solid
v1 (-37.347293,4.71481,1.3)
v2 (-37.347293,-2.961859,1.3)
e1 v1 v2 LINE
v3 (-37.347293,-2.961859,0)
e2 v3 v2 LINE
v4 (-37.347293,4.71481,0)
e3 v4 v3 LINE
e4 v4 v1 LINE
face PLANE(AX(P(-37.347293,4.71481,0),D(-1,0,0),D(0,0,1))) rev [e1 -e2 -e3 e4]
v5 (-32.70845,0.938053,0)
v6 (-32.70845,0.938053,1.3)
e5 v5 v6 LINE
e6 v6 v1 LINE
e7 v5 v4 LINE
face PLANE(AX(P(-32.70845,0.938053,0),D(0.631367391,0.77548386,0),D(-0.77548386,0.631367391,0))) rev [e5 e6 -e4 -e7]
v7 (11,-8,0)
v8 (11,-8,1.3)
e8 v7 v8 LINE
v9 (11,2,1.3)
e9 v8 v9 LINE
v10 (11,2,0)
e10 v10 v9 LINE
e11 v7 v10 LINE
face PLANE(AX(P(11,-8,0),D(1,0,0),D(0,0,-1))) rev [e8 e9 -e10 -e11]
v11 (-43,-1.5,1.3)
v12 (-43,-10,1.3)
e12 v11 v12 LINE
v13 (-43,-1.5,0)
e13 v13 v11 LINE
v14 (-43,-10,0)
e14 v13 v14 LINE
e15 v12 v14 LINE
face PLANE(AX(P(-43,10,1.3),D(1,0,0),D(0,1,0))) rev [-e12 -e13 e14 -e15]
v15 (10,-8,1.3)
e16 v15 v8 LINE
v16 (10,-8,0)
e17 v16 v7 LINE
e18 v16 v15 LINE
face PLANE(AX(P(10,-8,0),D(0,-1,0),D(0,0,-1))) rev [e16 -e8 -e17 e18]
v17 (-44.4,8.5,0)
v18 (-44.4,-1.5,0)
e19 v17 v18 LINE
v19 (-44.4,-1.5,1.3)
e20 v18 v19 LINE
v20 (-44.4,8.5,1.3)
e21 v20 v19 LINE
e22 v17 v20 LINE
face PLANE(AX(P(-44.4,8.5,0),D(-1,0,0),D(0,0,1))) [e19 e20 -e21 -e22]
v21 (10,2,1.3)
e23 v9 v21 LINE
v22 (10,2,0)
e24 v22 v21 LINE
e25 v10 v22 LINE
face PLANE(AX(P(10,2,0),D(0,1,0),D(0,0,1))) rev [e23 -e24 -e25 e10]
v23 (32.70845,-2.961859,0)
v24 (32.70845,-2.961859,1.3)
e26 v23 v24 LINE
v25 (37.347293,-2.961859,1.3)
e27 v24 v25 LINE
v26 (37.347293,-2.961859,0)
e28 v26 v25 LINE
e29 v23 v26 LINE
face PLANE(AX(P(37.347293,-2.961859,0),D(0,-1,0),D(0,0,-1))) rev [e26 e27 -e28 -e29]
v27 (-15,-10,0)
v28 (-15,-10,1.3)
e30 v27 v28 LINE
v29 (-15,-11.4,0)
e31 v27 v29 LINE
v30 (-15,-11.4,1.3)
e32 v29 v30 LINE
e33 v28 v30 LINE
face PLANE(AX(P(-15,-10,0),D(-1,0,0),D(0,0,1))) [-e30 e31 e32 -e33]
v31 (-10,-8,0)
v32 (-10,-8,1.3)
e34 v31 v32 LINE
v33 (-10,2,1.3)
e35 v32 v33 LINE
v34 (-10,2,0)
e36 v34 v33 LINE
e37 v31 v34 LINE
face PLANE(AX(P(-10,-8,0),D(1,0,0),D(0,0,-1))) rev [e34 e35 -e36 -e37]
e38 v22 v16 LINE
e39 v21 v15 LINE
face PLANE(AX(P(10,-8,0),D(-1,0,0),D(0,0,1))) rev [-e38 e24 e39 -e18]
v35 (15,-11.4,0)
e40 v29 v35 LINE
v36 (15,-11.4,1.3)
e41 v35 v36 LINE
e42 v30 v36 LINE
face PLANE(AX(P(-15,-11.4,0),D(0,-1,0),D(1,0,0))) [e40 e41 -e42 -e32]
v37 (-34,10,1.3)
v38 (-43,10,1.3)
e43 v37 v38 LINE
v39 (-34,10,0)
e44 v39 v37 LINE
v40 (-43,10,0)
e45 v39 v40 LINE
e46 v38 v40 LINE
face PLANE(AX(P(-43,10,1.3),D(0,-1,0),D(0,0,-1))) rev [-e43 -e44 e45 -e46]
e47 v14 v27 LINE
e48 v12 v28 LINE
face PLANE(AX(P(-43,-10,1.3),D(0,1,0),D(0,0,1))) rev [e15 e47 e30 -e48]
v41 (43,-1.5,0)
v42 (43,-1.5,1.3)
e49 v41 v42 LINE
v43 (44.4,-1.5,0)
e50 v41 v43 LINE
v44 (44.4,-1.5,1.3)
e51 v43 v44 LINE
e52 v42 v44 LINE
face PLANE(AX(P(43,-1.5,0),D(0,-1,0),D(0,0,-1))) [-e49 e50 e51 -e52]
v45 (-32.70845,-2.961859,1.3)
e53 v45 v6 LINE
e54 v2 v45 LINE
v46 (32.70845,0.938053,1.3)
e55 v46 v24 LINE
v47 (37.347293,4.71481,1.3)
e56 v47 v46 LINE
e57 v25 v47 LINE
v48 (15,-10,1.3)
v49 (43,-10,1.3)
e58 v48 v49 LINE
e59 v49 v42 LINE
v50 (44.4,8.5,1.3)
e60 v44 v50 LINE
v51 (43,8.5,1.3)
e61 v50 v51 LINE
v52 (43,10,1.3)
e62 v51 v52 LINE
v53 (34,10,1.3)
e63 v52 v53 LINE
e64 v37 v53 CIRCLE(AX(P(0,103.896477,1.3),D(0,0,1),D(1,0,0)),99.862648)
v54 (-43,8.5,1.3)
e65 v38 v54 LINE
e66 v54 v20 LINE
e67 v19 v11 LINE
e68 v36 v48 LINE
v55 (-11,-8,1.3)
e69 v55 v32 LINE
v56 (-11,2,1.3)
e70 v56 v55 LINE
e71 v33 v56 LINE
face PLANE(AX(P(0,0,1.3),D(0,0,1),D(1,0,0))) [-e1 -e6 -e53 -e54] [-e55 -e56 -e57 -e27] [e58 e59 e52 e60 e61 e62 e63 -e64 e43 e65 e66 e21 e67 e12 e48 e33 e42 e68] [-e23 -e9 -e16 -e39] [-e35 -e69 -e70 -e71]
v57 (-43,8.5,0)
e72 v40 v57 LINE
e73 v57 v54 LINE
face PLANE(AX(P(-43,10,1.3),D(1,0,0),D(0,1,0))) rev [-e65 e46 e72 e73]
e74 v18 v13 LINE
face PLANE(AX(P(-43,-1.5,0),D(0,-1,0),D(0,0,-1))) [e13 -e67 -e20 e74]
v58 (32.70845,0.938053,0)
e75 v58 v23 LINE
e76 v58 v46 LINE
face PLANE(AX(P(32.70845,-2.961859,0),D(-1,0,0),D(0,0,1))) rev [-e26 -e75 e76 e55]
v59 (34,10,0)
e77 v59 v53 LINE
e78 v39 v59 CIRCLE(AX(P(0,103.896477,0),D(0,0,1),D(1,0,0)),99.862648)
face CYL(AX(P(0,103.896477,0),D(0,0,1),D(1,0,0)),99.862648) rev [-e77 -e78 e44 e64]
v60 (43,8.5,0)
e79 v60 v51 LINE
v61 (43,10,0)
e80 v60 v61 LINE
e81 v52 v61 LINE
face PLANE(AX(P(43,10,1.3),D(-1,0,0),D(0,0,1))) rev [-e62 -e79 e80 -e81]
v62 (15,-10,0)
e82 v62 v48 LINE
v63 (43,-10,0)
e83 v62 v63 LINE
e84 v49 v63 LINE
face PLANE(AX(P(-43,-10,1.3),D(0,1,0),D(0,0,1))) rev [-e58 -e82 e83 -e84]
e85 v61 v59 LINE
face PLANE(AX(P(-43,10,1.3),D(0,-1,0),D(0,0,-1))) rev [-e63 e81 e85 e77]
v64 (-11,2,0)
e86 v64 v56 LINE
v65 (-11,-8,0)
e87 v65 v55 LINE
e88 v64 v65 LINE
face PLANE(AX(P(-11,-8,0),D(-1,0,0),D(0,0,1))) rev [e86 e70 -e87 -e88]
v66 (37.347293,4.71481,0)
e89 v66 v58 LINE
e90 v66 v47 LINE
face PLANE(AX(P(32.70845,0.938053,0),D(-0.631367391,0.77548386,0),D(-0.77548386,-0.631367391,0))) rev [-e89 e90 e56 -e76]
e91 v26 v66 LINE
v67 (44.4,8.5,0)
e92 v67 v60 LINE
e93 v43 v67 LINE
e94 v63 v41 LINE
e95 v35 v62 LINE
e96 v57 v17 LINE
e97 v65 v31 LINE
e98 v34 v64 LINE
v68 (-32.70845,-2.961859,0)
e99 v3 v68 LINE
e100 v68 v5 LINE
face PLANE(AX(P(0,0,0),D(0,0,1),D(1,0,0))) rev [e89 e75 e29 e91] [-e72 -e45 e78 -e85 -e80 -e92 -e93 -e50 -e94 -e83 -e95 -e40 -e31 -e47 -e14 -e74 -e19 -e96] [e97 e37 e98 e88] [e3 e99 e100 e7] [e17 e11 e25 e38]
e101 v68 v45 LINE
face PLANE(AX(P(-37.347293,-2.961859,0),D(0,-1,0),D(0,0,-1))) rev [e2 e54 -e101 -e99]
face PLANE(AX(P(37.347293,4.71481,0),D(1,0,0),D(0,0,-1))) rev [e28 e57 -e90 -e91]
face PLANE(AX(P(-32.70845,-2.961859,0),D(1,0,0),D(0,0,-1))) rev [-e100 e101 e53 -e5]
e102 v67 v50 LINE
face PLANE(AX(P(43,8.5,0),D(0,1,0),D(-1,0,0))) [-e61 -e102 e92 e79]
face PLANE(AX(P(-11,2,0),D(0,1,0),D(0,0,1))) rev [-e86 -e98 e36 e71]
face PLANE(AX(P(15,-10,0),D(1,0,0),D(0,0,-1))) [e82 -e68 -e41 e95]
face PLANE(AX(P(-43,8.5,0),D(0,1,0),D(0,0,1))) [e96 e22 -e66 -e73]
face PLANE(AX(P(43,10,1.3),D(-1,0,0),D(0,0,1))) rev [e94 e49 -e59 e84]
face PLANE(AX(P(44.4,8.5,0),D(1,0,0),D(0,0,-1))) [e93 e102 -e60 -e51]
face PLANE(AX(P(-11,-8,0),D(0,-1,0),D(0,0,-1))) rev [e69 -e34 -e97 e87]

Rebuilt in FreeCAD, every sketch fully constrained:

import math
import FreeCAD as App
import Part
import Sketcher

V = App.Vector
Q = App.Units.Quantity


def add_polygon(sketch, points):
    """Adds a closed chain of lines whose ends are joined by coincident constraints."""
    first, n = sketch.GeometryCount, len(points)
    for a, b in zip(points, points[1:] + points[:1]):
        sketch.addGeometry(Part.LineSegment(App.Vector(*a, 0), App.Vector(*b, 0)), False)
    for i in range(n):
        sketch.addConstraint(Sketcher.Constraint("Coincident", first + i, 2, first + (i + 1) % n, 1))

doc = App.newDocument("Part")
body = doc.addObject("PartDesign::Body", "Body")

# Sketch on XY plane
sketch1 = body.newObject("Sketcher::SketchObject", "Sketch")
sketch1.AttachmentSupport = (doc.getObject("XY_Plane"), [""])
sketch1.MapMode = "FlatFace"
add_polygon(sketch1, [(-43, 10), (-43, -10), (43, -10), (43, 10)])  # lines 0-3
sketch1.addConstraint([
    Sketcher.Constraint("Vertical", 0),
    Sketcher.Constraint("Horizontal", 1),
    Sketcher.Constraint("Vertical", 2),
    Sketcher.Constraint("Horizontal", 3),
    Sketcher.Constraint("Symmetric", 0, 2, 2, 2, -1, 1),
    Sketcher.Constraint("DistanceX", 1, 1, 1, 2, Q("86 mm")),
    Sketcher.Constraint("DistanceY", 0, 2, 0, 1, Q("20 mm")),
])
pad1 = body.newObject("PartDesign::Pad", "Pad")
pad1.Profile = sketch1
pad1.Length = 1.3

# Sketch on XY plane
sketch2 = body.newObject("Sketcher::SketchObject", "Sketch001")
sketch2.AttachmentSupport = (doc.getObject("XY_Plane"), [""])
sketch2.MapMode = "FlatFace"
sketch2.AttachmentOffset = App.Placement(V(0, 0, 1.3), App.Rotation())
add_polygon(sketch2, [(-15, -10), (-15, -11.4), (15, -11.4), (15, -10)])  # lines 0-3
add_polygon(sketch2, [(-44.4, 8.5), (-44.4, -1.5), (-43, -1.5), (-43, 8.5)])  # lines 4-7
add_polygon(sketch2, [(43, 8.5), (43, -1.5), (44.4, -1.5), (44.4, 8.5)])  # lines 8-11
sketch2.addConstraint([
    Sketcher.Constraint("Vertical", 0),
    Sketcher.Constraint("Horizontal", 1),
    Sketcher.Constraint("Vertical", 2),
    Sketcher.Constraint("Horizontal", 3),
    Sketcher.Constraint("Vertical", 4),
    Sketcher.Constraint("Horizontal", 5),
    Sketcher.Constraint("Vertical", 6),
    Sketcher.Constraint("Horizontal", 7),
    Sketcher.Constraint("Vertical", 8),
    Sketcher.Constraint("Horizontal", 9),
    Sketcher.Constraint("Vertical", 10),
    Sketcher.Constraint("Horizontal", 11),
    Sketcher.Constraint("Symmetric", 5, 2, 8, 2, -2),
    Sketcher.Constraint("Symmetric", 7, 2, 10, 2, -2),
    Sketcher.Constraint("Equal", 11, 0),
    Sketcher.Constraint("DistanceX", 1, 1, 1, 2, Q("30 mm")),
    Sketcher.Constraint("DistanceY", 4, 2, 4, 1, Q("10 mm")),
    Sketcher.Constraint("DistanceX", 5, 1, 5, 2, Q("1.4 mm")),
    Sketcher.Constraint("DistanceX", 0, 2, -1, 1, Q("15 mm")),
    Sketcher.Constraint("DistanceY", 2, 2, -1, 1, Q("10 mm")),
    Sketcher.Constraint("DistanceX", 5, 2, -1, 1, Q("43 mm")),
    Sketcher.Constraint("DistanceY", 4, 2, -1, 1, Q("1.5 mm")),
])
pad2 = body.newObject("PartDesign::Pad", "Pad001")
pad2.Profile = sketch2
pad2.Length = 1.3
pad2.Reversed = True

# Sketch on XY plane
sketch3 = body.newObject("Sketcher::SketchObject", "Sketch002")
sketch3.AttachmentSupport = (doc.getObject("XY_Plane"), [""])
sketch3.MapMode = "FlatFace"
sketch3.AttachmentOffset = App.Placement(V(0, 0, 1.3), App.Rotation())
sketch3.addGeometry([
    Part.LineSegment(V(34, 10, 0), V(-34, 10, 0)),
    Part.ArcOfCircle(Part.Circle(V(0, 104, 0), V(0, 0, 1), 100), math.radians(-110), math.radians(-70)),
], False)
sketch3.addConstraint([
    Sketcher.Constraint("Coincident", 0, 1, 1, 2),
    Sketcher.Constraint("Coincident", 1, 1, 0, 2),
    Sketcher.Constraint("Horizontal", 0),
    Sketcher.Constraint("PointOnObject", 1, 3, -2),
    Sketcher.Constraint("DistanceX", 0, 2, 0, 1, Q("68 mm")),
    Sketcher.Constraint("DistanceY", -1, 1, 0, 1, Q("10 mm")),
    Sketcher.Constraint("Radius", 1, Q("99.862648 mm")),
])
pocket1 = body.newObject("PartDesign::Pocket", "Pocket")
pocket1.Profile = sketch3
pocket1.Type = "ThroughAll"

# Sketch on XY plane
sketch4 = body.newObject("Sketcher::SketchObject", "Sketch003")
sketch4.AttachmentSupport = (doc.getObject("XY_Plane"), [""])
sketch4.MapMode = "FlatFace"
sketch4.AttachmentOffset = App.Placement(V(0, 0, 1.3), App.Rotation())
add_polygon(sketch4, [(-11, 2), (-11, -8), (-10, -8), (-10, 2)])  # lines 0-3
add_polygon(sketch4, [(10, 2), (10, -8), (11, -8), (11, 2)])  # lines 4-7
sketch4.addConstraint([
    Sketcher.Constraint("Vertical", 0),
    Sketcher.Constraint("Horizontal", 1),
    Sketcher.Constraint("Vertical", 2),
    Sketcher.Constraint("Horizontal", 3),
    Sketcher.Constraint("Vertical", 4),
    Sketcher.Constraint("Horizontal", 5),
    Sketcher.Constraint("Vertical", 6),
    Sketcher.Constraint("Horizontal", 7),
    Sketcher.Constraint("Symmetric", 1, 2, 4, 2, -2),
    Sketcher.Constraint("Symmetric", 3, 2, 6, 2, -2),
    Sketcher.Constraint("DistanceX", 1, 1, 1, 2, Q("1 mm")),
    Sketcher.Constraint("DistanceY", 0, 2, 0, 1, Q("10 mm")),
    Sketcher.Constraint("DistanceX", 0, 2, -1, 1, Q("11 mm")),
    Sketcher.Constraint("DistanceY", 0, 2, -1, 1, Q("8 mm")),
])
pocket2 = body.newObject("PartDesign::Pocket", "Pocket001")
pocket2.Profile = sketch4
pocket2.Type = "ThroughAll"

# Sketch on XY plane
sketch5 = body.newObject("Sketcher::SketchObject", "Sketch004")
sketch5.AttachmentSupport = (doc.getObject("XY_Plane"), [""])
sketch5.MapMode = "FlatFace"
sketch5.AttachmentOffset = App.Placement(V(0, 0, 1.3), App.Rotation())
add_polygon(sketch5, [(-37.3, 4.7), (-37.3, -3), (-32.7, -3), (-32.7, 0.9)])  # lines 0-3
add_polygon(sketch5, [(32.7, 0.9), (32.7, -3), (37.3, -3), (37.3, 4.7)])  # lines 4-7
sketch5.addConstraint([
    Sketcher.Constraint("Vertical", 0),
    Sketcher.Constraint("Horizontal", 1),
    Sketcher.Constraint("Vertical", 2),
    Sketcher.Constraint("Vertical", 4),
    Sketcher.Constraint("Horizontal", 5),
    Sketcher.Constraint("Vertical", 6),
    Sketcher.Constraint("Symmetric", 1, 2, 4, 2, -2),
    Sketcher.Constraint("Symmetric", 3, 2, 6, 2, -2),
    Sketcher.Constraint("Horizontal", 2, 2, 7, 2),
    Sketcher.Constraint("DistanceY", 0, 2, 0, 1, Q("7.676669 mm")),
    Sketcher.Constraint("DistanceX", 1, 2, 4, 2, Q("65.4169 mm")),
    Sketcher.Constraint("Distance", 3, Q("5.981869 mm")),
    Sketcher.Constraint("DistanceX", 1, 1, 1, 2, Q("4.638843 mm")),
    Sketcher.Constraint("DistanceY", 0, 2, -1, 1, Q("2.961859 mm")),
])
pocket3 = body.newObject("PartDesign::Pocket", "Pocket002")
pocket3.Profile = sketch5
pocket3.Type = "ThroughAll"

doc.recompute()
